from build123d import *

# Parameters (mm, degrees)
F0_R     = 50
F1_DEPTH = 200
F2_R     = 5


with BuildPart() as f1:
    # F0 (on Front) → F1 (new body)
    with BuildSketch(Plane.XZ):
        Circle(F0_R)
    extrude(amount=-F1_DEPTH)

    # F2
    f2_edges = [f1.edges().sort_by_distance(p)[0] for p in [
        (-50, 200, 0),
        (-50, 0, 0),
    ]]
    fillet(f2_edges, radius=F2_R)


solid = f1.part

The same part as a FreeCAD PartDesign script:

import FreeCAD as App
import Part
import Sketcher

V = App.Vector
Q = App.Units.Quantity


def edges_at(feature, points):
    """Names of the edges that pass closest to the given points."""
    edges = feature.Shape.Edges
    near = lambda p: min(range(len(edges)), key=lambda i: edges[i].distToShape(Part.Vertex(*p))[0])
    return sorted({f"Edge{near(p) + 1}" for p in points})

doc = App.newDocument("Part")
body = doc.addObject("PartDesign::Body", "Body")

# Sketch on XZ plane
sketch1 = body.newObject("Sketcher::SketchObject", "Sketch")
sketch1.AttachmentSupport = (doc.getObject("XZ_Plane"), [""])
sketch1.MapMode = "FlatFace"
sketch1.addGeometry(Part.Circle(V(0, 0, 0), V(0, 0, 1), 50), False)
sketch1.addConstraint(Sketcher.Constraint("Coincident", 0, 3, -1, 1))
sketch1.addConstraint(Sketcher.Constraint("Diameter", 0, Q("100 mm")))
pad1 = body.newObject("PartDesign::Pad", "Pad")
pad1.Profile = sketch1
pad1.Length = 200
pad1.Reversed = True
doc.recompute()

fillet = body.newObject("PartDesign::Fillet", "Fillet")
fillet.Base = (pad1, edges_at(pad1, [(-50, 200, 0), (-50, 0, 0)]))
fillet.Radius = 5

doc.recompute()
